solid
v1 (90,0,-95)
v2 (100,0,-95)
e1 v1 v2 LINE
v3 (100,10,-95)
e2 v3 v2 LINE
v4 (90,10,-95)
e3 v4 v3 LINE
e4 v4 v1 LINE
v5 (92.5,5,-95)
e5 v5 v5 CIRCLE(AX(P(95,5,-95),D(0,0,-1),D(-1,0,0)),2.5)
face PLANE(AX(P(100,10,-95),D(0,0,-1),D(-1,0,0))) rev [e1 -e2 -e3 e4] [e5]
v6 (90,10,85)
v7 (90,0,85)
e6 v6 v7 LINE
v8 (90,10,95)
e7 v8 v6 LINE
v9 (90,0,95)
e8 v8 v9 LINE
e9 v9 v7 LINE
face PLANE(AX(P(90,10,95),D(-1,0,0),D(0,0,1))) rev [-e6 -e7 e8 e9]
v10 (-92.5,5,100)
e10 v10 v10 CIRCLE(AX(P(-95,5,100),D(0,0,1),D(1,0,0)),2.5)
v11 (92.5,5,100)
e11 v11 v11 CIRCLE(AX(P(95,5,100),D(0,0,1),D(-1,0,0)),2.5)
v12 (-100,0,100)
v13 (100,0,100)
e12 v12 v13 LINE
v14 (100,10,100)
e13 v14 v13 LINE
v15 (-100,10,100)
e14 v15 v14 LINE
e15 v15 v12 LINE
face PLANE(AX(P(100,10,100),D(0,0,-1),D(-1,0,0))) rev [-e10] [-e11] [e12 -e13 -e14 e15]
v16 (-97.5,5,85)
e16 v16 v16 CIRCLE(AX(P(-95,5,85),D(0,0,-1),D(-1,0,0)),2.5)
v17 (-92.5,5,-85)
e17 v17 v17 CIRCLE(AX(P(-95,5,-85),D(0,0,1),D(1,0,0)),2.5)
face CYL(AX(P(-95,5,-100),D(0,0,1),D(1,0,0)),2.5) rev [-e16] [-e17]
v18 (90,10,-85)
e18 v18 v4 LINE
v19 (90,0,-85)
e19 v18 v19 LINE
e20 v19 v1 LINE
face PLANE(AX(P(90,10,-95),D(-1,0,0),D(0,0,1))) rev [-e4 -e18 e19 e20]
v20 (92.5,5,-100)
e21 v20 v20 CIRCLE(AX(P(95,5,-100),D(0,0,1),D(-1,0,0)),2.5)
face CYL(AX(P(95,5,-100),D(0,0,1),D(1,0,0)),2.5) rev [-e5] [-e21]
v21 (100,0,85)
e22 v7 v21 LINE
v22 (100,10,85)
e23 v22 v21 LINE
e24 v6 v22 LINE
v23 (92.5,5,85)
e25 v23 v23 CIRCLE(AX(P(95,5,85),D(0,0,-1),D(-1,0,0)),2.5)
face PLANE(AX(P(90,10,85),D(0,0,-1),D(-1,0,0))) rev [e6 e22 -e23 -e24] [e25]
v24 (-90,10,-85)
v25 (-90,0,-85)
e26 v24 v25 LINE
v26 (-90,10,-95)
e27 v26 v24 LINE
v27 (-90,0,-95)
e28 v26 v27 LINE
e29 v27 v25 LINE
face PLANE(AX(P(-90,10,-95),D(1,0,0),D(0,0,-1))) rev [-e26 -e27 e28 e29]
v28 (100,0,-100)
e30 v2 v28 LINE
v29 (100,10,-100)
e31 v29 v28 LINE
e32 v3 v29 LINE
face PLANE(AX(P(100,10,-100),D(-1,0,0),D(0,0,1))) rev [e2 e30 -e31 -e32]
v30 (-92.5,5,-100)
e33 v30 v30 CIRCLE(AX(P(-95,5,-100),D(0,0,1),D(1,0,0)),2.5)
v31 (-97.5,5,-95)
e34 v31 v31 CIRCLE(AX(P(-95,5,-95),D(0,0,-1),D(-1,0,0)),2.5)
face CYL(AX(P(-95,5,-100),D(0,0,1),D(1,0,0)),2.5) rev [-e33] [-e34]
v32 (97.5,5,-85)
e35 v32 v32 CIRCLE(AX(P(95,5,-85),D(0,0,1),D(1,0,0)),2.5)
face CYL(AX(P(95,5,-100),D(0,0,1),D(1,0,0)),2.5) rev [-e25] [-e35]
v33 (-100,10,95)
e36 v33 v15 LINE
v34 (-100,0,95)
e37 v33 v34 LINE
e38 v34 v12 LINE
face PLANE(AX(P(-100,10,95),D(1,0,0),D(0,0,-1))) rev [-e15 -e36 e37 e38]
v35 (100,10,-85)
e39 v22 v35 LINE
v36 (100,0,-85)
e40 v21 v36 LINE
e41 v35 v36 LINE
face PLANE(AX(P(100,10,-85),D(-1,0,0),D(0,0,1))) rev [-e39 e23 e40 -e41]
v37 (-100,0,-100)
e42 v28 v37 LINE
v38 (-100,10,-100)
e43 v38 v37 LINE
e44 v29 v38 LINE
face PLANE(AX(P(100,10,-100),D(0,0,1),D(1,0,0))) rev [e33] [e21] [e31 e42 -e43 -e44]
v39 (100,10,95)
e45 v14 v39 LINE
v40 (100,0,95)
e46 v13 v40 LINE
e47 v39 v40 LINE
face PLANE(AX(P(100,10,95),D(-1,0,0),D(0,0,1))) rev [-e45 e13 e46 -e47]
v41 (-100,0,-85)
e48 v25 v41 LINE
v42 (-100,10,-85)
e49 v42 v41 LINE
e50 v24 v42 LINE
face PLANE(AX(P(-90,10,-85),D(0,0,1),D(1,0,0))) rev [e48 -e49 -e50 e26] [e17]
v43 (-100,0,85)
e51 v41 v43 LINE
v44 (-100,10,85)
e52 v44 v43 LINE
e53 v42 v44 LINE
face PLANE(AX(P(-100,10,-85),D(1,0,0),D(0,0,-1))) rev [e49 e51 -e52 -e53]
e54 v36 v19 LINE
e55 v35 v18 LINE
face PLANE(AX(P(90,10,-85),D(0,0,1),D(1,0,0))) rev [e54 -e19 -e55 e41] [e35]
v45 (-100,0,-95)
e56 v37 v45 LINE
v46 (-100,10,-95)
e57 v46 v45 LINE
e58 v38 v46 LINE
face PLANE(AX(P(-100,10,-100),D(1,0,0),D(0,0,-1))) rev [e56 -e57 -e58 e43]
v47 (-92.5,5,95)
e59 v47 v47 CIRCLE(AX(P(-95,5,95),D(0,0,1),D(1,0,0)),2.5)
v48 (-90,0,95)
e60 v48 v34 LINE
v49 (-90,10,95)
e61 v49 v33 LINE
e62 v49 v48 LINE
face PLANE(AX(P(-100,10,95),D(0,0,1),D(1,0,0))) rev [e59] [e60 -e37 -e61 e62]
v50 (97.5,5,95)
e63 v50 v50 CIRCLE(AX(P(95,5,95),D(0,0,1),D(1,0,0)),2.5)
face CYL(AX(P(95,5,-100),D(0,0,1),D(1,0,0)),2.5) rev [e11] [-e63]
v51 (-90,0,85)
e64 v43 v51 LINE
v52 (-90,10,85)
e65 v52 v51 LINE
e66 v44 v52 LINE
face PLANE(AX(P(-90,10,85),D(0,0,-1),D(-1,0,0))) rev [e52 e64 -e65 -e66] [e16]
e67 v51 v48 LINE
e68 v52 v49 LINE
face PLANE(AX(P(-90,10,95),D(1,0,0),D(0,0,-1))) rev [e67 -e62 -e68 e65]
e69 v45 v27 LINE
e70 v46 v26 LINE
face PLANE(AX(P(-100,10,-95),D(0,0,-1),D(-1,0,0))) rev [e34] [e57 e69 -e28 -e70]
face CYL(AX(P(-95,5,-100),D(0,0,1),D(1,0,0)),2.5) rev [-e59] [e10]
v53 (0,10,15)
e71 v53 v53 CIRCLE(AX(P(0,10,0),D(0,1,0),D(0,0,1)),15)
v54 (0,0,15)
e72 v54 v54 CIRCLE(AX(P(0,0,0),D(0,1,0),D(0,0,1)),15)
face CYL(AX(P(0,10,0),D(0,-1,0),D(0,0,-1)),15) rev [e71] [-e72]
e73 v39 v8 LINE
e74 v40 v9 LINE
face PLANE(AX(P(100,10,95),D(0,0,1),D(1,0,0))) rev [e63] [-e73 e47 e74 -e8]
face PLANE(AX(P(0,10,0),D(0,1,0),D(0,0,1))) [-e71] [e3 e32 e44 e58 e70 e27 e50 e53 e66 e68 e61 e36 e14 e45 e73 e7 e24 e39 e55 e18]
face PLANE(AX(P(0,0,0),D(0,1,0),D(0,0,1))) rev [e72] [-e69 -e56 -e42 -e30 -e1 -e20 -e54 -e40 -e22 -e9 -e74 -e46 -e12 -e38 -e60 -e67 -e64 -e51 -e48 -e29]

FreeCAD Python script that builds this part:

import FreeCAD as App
import Part
import Sketcher

V = App.Vector
Q = App.Units.Quantity


def add_polygon(sketch, points):
    """Adds a closed chain of lines whose ends are joined by coincident constraints."""
    first, n = sketch.GeometryCount, len(points)
    for a, b in zip(points, points[1:] + points[:1]):
        sketch.addGeometry(Part.LineSegment(App.Vector(*a, 0), App.Vector(*b, 0)), False)
    for i in range(n):
        sketch.addConstraint(Sketcher.Constraint("Coincident", first + i, 2, first + (i + 1) % n, 1))

doc = App.newDocument("Part")
body = doc.addObject("PartDesign::Body", "Body")

# Sketch on XZ plane
sketch1 = body.newObject("Sketcher::SketchObject", "Sketch")
sketch1.AttachmentSupport = (doc.getObject("XZ_Plane"), [""])
sketch1.MapMode = "FlatFace"
add_polygon(sketch1, [(-100, -95), (-90, -95), (-90, -85), (-100, -85), (-100, 85), (-90, 85), (-90, 95), (-100, 95), (-100, 100), (100, 100), (100, 95), (90, 95), (90, 85), (100, 85), (100, -85), (90, -85), (90, -95), (100, -95), (100, -100), (-100, -100)])  # lines 0-19
sketch1.addGeometry(Part.Circle(V(0, 0, 0), V(0, 0, 1), 15), False)  # 20
sketch1.addConstraint([
    Sketcher.Constraint("Horizontal", 0),
    Sketcher.Constraint("Vertical", 1),
    Sketcher.Constraint("Horizontal", 2),
    Sketcher.Constraint("Vertical", 3),
    Sketcher.Constraint("Horizontal", 4),
    Sketcher.Constraint("Vertical", 5),
    Sketcher.Constraint("Horizontal", 6),
    Sketcher.Constraint("Vertical", 7),
    Sketcher.Constraint("Horizontal", 8),
    Sketcher.Constraint("Vertical", 9),
    Sketcher.Constraint("Horizontal", 10),
    Sketcher.Constraint("Vertical", 11),
    Sketcher.Constraint("Horizontal", 12),
    Sketcher.Constraint("Vertical", 13),
    Sketcher.Constraint("Horizontal", 14),
    Sketcher.Constraint("Vertical", 15),
    Sketcher.Constraint("Horizontal", 16),
    Sketcher.Constraint("Vertical", 17),
    Sketcher.Constraint("Horizontal", 18),
    Sketcher.Constraint("Vertical", 19),
    Sketcher.Constraint("Coincident", 20, 3, -1, 1),
    Sketcher.Constraint("Symmetric", 0, 2, 10, 2, -1, 1),
    Sketcher.Constraint("Symmetric", 2, 2, 12, 2, -1, 1),
    Sketcher.Constraint("Symmetric", 4, 2, 14, 2, -1, 1),
    Sketcher.Constraint("Symmetric", 6, 2, 16, 2, -1, 1),
    Sketcher.Constraint("Symmetric", 8, 2, 18, 2, -1, 1),
    Sketcher.Constraint("Symmetric", 6, 2, 9, 2, -2),
    Sketcher.Constraint("Symmetric", 4, 2, 11, 2, -2),
    Sketcher.Constraint("Vertical", 3, 2, 6, 2),
    Sketcher.Constraint("Equal", 16, 1),
    Sketcher.Constraint("Diameter", 20, Q("30 mm")),
    Sketcher.Constraint("DistanceX", 0, 1, 0, 2, Q("10 mm")),
    Sketcher.Constraint("DistanceX", 8, 1, 8, 2, Q("200 mm")),
    Sketcher.Constraint("DistanceY", 3, 1, 3, 2, Q("170 mm")),
    Sketcher.Constraint("DistanceY", 7, 1, 7, 2, Q("5 mm")),
])
pad1 = body.newObject("PartDesign::Pad", "Pad")
pad1.Profile = sketch1
pad1.Length = 10
pad1.Reversed = True

# Sketch on XY plane
sketch2 = body.newObject("Sketcher::SketchObject", "Sketch001")
sketch2.AttachmentSupport = (doc.getObject("XY_Plane"), [""])
sketch2.MapMode = "FlatFace"
sketch2.AttachmentOffset = App.Placement(V(0, 0, 100), App.Rotation())
sketch2.addGeometry([
    Part.Circle(V(-95, 5, 0), V(0, 0, 1), 2.5),
    Part.Circle(V(95, 5, 0), V(0, 0, 1), 2.5),
], False)
sketch2.addConstraint([
    Sketcher.Constraint("Equal", 0, 1),
    Sketcher.Constraint("Symmetric", 0, 3, 1, 3, -2),
    Sketcher.Constraint("Diameter", 0, Q("5 mm")),
    Sketcher.Constraint("DistanceX", 0, 3, -1, 1, Q("95 mm")),
    Sketcher.Constraint("DistanceY", -1, 1, 0, 3, Q("5 mm")),
])
pocket1 = body.newObject("PartDesign::Pocket", "Pocket")
pocket1.Profile = sketch2
pocket1.Type = "ThroughAll"

doc.recompute()
